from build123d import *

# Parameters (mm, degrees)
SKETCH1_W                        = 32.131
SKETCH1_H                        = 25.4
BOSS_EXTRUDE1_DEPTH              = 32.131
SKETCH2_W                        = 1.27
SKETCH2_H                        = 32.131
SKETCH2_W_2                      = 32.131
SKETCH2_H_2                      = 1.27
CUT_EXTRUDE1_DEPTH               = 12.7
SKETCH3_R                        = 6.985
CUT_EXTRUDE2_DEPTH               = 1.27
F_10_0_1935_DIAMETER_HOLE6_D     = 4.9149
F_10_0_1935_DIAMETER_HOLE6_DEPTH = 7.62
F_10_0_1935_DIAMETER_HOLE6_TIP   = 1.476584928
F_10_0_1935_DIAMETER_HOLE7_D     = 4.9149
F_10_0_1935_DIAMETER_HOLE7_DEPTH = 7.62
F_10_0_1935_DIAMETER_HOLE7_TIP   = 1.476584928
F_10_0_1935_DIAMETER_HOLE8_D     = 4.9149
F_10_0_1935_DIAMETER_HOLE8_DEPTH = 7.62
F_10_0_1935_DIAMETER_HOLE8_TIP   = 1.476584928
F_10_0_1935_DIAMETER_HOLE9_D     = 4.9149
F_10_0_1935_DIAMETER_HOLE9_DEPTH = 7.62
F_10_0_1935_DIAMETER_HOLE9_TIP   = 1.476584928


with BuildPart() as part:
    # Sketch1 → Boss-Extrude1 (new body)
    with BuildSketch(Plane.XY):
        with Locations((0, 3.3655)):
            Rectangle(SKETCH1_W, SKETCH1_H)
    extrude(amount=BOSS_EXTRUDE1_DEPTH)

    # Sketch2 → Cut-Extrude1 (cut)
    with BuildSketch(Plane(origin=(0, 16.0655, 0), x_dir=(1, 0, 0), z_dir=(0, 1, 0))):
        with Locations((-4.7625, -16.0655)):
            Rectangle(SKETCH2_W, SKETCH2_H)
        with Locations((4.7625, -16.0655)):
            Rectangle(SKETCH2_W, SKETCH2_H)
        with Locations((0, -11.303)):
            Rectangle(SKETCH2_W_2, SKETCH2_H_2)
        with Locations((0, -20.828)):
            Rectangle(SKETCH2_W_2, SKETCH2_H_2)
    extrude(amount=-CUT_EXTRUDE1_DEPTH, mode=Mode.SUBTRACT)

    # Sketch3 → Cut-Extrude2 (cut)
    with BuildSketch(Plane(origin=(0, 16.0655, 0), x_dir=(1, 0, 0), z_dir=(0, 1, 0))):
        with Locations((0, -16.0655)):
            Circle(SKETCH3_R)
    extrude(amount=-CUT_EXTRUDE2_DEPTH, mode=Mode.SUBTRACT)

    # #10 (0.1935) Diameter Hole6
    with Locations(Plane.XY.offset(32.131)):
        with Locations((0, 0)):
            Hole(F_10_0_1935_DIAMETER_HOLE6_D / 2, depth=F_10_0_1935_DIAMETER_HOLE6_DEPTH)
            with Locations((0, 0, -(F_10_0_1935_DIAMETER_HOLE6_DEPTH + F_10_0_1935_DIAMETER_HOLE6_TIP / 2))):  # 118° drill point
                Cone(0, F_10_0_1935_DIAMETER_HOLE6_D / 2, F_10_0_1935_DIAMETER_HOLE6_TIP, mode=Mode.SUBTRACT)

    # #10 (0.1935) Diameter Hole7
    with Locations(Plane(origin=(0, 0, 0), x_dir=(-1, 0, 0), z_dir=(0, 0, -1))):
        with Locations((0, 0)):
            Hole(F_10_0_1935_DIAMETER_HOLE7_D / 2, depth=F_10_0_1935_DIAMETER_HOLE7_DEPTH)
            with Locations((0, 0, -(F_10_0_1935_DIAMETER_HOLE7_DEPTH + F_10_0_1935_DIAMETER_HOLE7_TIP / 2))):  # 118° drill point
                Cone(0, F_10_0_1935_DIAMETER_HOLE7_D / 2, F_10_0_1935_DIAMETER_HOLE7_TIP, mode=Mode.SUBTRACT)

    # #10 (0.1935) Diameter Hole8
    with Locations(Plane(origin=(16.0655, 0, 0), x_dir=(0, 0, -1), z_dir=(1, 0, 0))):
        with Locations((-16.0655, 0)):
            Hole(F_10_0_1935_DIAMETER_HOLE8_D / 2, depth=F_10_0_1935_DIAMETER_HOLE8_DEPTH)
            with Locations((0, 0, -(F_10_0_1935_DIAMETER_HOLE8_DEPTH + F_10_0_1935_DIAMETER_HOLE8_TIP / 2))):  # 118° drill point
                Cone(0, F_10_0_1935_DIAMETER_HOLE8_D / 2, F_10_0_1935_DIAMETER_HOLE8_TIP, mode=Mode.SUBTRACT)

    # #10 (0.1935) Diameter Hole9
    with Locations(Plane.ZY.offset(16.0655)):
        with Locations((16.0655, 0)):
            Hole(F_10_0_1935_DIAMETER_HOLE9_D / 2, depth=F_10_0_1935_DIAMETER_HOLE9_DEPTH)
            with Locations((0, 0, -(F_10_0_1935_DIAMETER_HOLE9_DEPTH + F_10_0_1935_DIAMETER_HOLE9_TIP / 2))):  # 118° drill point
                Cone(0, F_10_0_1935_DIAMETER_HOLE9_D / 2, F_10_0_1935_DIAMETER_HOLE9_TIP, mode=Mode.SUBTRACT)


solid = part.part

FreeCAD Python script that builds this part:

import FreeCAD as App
import Part
import Sketcher

V = App.Vector
Q = App.Units.Quantity

doc = App.newDocument("Part")
params = doc.addObject("Spreadsheet::Sheet", "Params")
for row, (alias, value) in enumerate([
    ("sketch1_height", "1 in"),
    ("sketch1_width", "1.265 in"),
    ("pad1_length", "1.265 in"),
    ("sketch2_width", "0.05 in"),
    ("sketch2_width2", "0.42 in"),
    ("sketch2_width3", "0.325 in"),
    ("pocket1_length", "0.5 in"),
    ("sketch3_diameter", "0.55 in"),
    ("pocket2_length", "0.05 in"),
    ("hole_diameter", "0.1935 in"),
    ("hole_depth", "0.3 in"),
    ("hole2_diameter", "0.1935 in"),
    ("hole2_depth", "0.3 in"),
    ("hole3_diameter", "0.1935 in"),
    ("hole3_depth", "0.3 in"),
    ("hole4_diameter", "0.1935 in"),
    ("hole4_depth", "0.3 in"),
], start=1):
    params.set(f"A{row}", alias)
    params.set(f"B{row}", "=" + value)
    params.setAlias(f"B{row}", alias)

body = doc.addObject("PartDesign::Body", "Body")

# Sketch on XY plane
sketch1 = doc.addObject("Sketcher::SketchObject", "Sketch")
body.addObject(sketch1)
sketch1.AttachmentSupport = (doc.XY_Plane, [""])
sketch1.MapMode = "FlatFace"
sketch1.addGeometry([
    Part.LineSegment(V(-16, 16, 0), V(-16, -9, 0)),
    Part.LineSegment(V(-16, -9, 0), V(16, -9, 0)),
    Part.LineSegment(V(16, -9, 0), V(16, 16, 0)),
    Part.LineSegment(V(16, 16, 0), V(-16, 16, 0)),
], False)
sketch1.addConstraint([
    Sketcher.Constraint("Coincident", 0, 2, 1, 1),
    Sketcher.Constraint("Coincident", 1, 2, 2, 1),
    Sketcher.Constraint("Coincident", 2, 2, 3, 1),
    Sketcher.Constraint("Coincident", 3, 2, 0, 1),
    Sketcher.Constraint("Vertical", 0),
    Sketcher.Constraint("Horizontal", 1),
    Sketcher.Constraint("Vertical", 2),
    Sketcher.Constraint("Horizontal", 3),
    Sketcher.Constraint("DistanceY", 0, 2, 0, 1, Q("1 in")),
    Sketcher.Constraint("DistanceX", 1, 1, 1, 2, Q("1.265 in")),
    Sketcher.Constraint("DistanceX", 0, 2, -1, 1, Q("0.6325 in")),
    Sketcher.Constraint("DistanceY", 0, 2, -1, 1, Q("0.3675 in")),
])
sketch1.setExpression("Constraints[8]", "Params.sketch1_height")
sketch1.setExpression("Constraints[9]", "Params.sketch1_width")
pad1 = doc.addObject("PartDesign::Pad", "Pad")
body.addObject(pad1)
pad1.Profile = sketch1
pad1.setExpression("Length", "Params.pad1_length")

# Sketch on XZ plane
sketch2 = doc.addObject("Sketcher::SketchObject", "Sketch001")
body.addObject(sketch2)
sketch2.AttachmentSupport = (doc.XZ_Plane, [""])
sketch2.MapMode = "FlatFace"
sketch2.AttachmentOffset = App.Placement(V(0, 0, -0.6325 * 25.4), App.Rotation())
sketch2.addGeometry([
    Part.LineSegment(V(-5.4, 21.5, 0), V(-5.4, 32.1, 0)),  # 0
    Part.LineSegment(V(-5.4, 32.1, 0), V(-4.1, 32.1, 0)),  # 1
    Part.LineSegment(V(-4.1, 32.1, 0), V(-4.1, 21.5, 0)),  # 2
    Part.LineSegment(V(-4.1, 21.5, 0), V(4.1, 21.5, 0)),  # 3
    Part.LineSegment(V(4.1, 21.5, 0), V(4.1, 32.1, 0)),  # 4
    Part.LineSegment(V(4.1, 32.1, 0), V(5.4, 32.1, 0)),  # 5
    Part.LineSegment(V(5.4, 32.1, 0), V(5.4, 21.5, 0)),  # 6
    Part.LineSegment(V(5.4, 21.5, 0), V(16.1, 21.5, 0)),  # 7
    Part.LineSegment(V(16.1, 21.5, 0), V(16.1, 20.2, 0)),  # 8
    Part.LineSegment(V(16.1, 20.2, 0), V(5.4, 20.2, 0)),  # 9
    Part.LineSegment(V(5.4, 20.2, 0), V(5.4, 11.9, 0)),  # 10
    Part.LineSegment(V(5.4, 11.9, 0), V(16.1, 11.9, 0)),  # 11
    Part.LineSegment(V(16.1, 11.9, 0), V(16.1, 10.7, 0)),  # 12
    Part.LineSegment(V(16.1, 10.7, 0), V(5.4, 10.7, 0)),  # 13
    Part.LineSegment(V(5.4, 10.7, 0), V(5.4, 0, 0)),  # 14
    Part.LineSegment(V(5.4, 0, 0), V(4.1, 0, 0)),  # 15
    Part.LineSegment(V(4.1, 0, 0), V(4.1, 10.7, 0)),  # 16
    Part.LineSegment(V(4.1, 10.7, 0), V(-4.1, 10.7, 0)),  # 17
    Part.LineSegment(V(-4.1, 10.7, 0), V(-4.1, 0, 0)),  # 18
    Part.LineSegment(V(-4.1, 0, 0), V(-5.4, 0, 0)),  # 19
    Part.LineSegment(V(-5.4, 0, 0), V(-5.4, 10.7, 0)),  # 20
    Part.LineSegment(V(-5.4, 10.7, 0), V(-16.1, 10.7, 0)),  # 21
    Part.LineSegment(V(-16.1, 10.7, 0), V(-16.1, 11.9, 0)),  # 22
    Part.LineSegment(V(-16.1, 11.9, 0), V(-5.4, 11.9, 0)),  # 23
    Part.LineSegment(V(-5.4, 11.9, 0), V(-5.4, 20.2, 0)),  # 24
    Part.LineSegment(V(-5.4, 20.2, 0), V(-16.1, 20.2, 0)),  # 25
    Part.LineSegment(V(-16.1, 20.2, 0), V(-16.1, 21.5, 0)),  # 26
    Part.LineSegment(V(-16.1, 21.5, 0), V(-5.4, 21.5, 0)),  # 27
    Part.LineSegment(V(4.1, 11.9, 0), V(4.1, 20.2, 0)),  # 28
    Part.LineSegment(V(4.1, 20.2, 0), V(-4.1, 20.2, 0)),  # 29
    Part.LineSegment(V(-4.1, 20.2, 0), V(-4.1, 11.9, 0)),  # 30
    Part.LineSegment(V(-4.1, 11.9, 0), V(4.1, 11.9, 0)),  # 31
], False)
sketch2.addConstraint([
    Sketcher.Constraint("Coincident", 0, 2, 1, 1),
    Sketcher.Constraint("Coincident", 1, 2, 2, 1),
    Sketcher.Constraint("Coincident", 2, 2, 3, 1),
    Sketcher.Constraint("Coincident", 3, 2, 4, 1),
    Sketcher.Constraint("Coincident", 4, 2, 5, 1),
    Sketcher.Constraint("Coincident", 5, 2, 6, 1),
    Sketcher.Constraint("Coincident", 6, 2, 7, 1),
    Sketcher.Constraint("Coincident", 7, 2, 8, 1),
    Sketcher.Constraint("Coincident", 8, 2, 9, 1),
    Sketcher.Constraint("Coincident", 9, 2, 10, 1),
    Sketcher.Constraint("Coincident", 10, 2, 11, 1),
    Sketcher.Constraint("Coincident", 11, 2, 12, 1),
    Sketcher.Constraint("Coincident", 12, 2, 13, 1),
    Sketcher.Constraint("Coincident", 13, 2, 14, 1),
    Sketcher.Constraint("Coincident", 14, 2, 15, 1),
    Sketcher.Constraint("Coincident", 15, 2, 16, 1),
    Sketcher.Constraint("Coincident", 16, 2, 17, 1),
    Sketcher.Constraint("Coincident", 17, 2, 18, 1),
    Sketcher.Constraint("Coincident", 18, 2, 19, 1),
    Sketcher.Constraint("Coincident", 19, 2, 20, 1),
    Sketcher.Constraint("Coincident", 20, 2, 21, 1),
    Sketcher.Constraint("Coincident", 21, 2, 22, 1),
    Sketcher.Constraint("Coincident", 22, 2, 23, 1),
    Sketcher.Constraint("Coincident", 23, 2, 24, 1),
    Sketcher.Constraint("Coincident", 24, 2, 25, 1),
    Sketcher.Constraint("Coincident", 25, 2, 26, 1),
    Sketcher.Constraint("Coincident", 26, 2, 27, 1),
    Sketcher.Constraint("Coincident", 27, 2, 0, 1),
    Sketcher.Constraint("Coincident", 28, 2, 29, 1),
    Sketcher.Constraint("Coincident", 29, 2, 30, 1),
    Sketcher.Constraint("Coincident", 30, 2, 31, 1),
    Sketcher.Constraint("Coincident", 31, 2, 28, 1),
    Sketcher.Constraint("Vertical", 0),
    Sketcher.Constraint("Horizontal", 1),
    Sketcher.Constraint("Vertical", 2),
    Sketcher.Constraint("Horizontal", 3),
    Sketcher.Constraint("Vertical", 4),
    Sketcher.Constraint("Horizontal", 5),
    Sketcher.Constraint("Vertical", 6),
    Sketcher.Constraint("Horizontal", 7),
    Sketcher.Constraint("Vertical", 8),
    Sketcher.Constraint("Horizontal", 9),
    Sketcher.Constraint("Vertical", 10),
    Sketcher.Constraint("Horizontal", 11),
    Sketcher.Constraint("Vertical", 12),
    Sketcher.Constraint("Horizontal", 13),
    Sketcher.Constraint("Vertical", 14),
    Sketcher.Constraint("Horizontal", 15),
    Sketcher.Constraint("Vertical", 16),
    Sketcher.Constraint("Horizontal", 17),
    Sketcher.Constraint("Vertical", 18),
    Sketcher.Constraint("Horizontal", 19),
    Sketcher.Constraint("Vertical", 20),
    Sketcher.Constraint("Horizontal", 21),
    Sketcher.Constraint("Vertical", 22),
    Sketcher.Constraint("Horizontal", 23),
    Sketcher.Constraint("Vertical", 24),
    Sketcher.Constraint("Horizontal", 25),
    Sketcher.Constraint("Vertical", 26),
    Sketcher.Constraint("Horizontal", 27),
    Sketcher.Constraint("Vertical", 28),
    Sketcher.Constraint("Horizontal", 29),
    Sketcher.Constraint("Vertical", 30),
    Sketcher.Constraint("Horizontal", 31),
    Sketcher.Constraint("Symmetric", 15, 2, 18, 2, -1, 1),
    Sketcher.Constraint("Symmetric", 1, 2, 4, 2, -2),
    Sketcher.Constraint("Symmetric", 14, 2, 19, 2, -2),
    Sketcher.Constraint("Symmetric", 12, 2, 21, 2, -2),
    Sketcher.Constraint("Symmetric", 10, 2, 23, 2, -2),
    Sketcher.Constraint("Symmetric", 8, 2, 25, 2, -2),
    Sketcher.Constraint("Symmetric", 6, 2, 27, 2, -2),
    Sketcher.Constraint("Horizontal", 3, 2, 6, 2),
    Sketcher.Constraint("Horizontal", 13, 2, 16, 2),
    Sketcher.Constraint("Horizontal", 25, 2, 28, 2),
    Sketcher.Constraint("Horizontal", 23, 2, 30, 2),
    Sketcher.Constraint("Vertical", 6, 2, 9, 2),
    Sketcher.Constraint("Vertical", 8, 2, 11, 2),
    Sketcher.Constraint("Vertical", 10, 2, 13, 2),
    Sketcher.Constraint("Vertical", 4, 2, 15, 2),
    Sketcher.Constraint("Vertical", 16, 2, 28, 2),
    Sketcher.Constraint("Vertical", 18, 2, 29, 2),
    Sketcher.Constraint("Equal", 27, 0),
    Sketcher.Constraint("Equal", 19, 8),
    Sketcher.Constraint("Equal", 31, 10),
    Sketcher.Constraint("Equal", 8, 12),
    Sketcher.Constraint("Equal", 6, 14),
    Sketcher.Constraint("DistanceX", 1, 1, 1, 2, Q("0.05 in")),
    Sketcher.Constraint("DistanceX", 7, 1, 7, 2, Q("0.42 in")),
    Sketcher.Constraint("DistanceX", 3, 1, 3, 2, Q("0.325 in")),
])
sketch2.setExpression("Constraints[86]", "Params.sketch2_width")
sketch2.setExpression("Constraints[87]", "Params.sketch2_width2")
sketch2.setExpression("Constraints[88]", "Params.sketch2_width3")
pocket1 = doc.addObject("PartDesign::Pocket", "Pocket")
body.addObject(pocket1)
pocket1.Profile = sketch2
pocket1.setExpression("Length", "Params.pocket1_length")
pocket1.Reversed = True

# Sketch on XZ plane
sketch3 = doc.addObject("Sketcher::SketchObject", "Sketch002")
body.addObject(sketch3)
sketch3.AttachmentSupport = (doc.XZ_Plane, [""])
sketch3.MapMode = "FlatFace"
sketch3.AttachmentOffset = App.Placement(V(0, 0, -0.6325 * 25.4), App.Rotation())
sketch3.addGeometry(Part.Circle(V(0, 16, 0), V(0, 0, 1), 7), False)
sketch3.addConstraint([
    Sketcher.Constraint("PointOnObject", 0, 3, -2),
    Sketcher.Constraint("Diameter", 0, Q("0.55 in")),
    Sketcher.Constraint("DistanceY", -1, 1, 0, 3, Q("0.6325 in")),
])
sketch3.setExpression("Constraints[1]", "Params.sketch3_diameter")
pocket2 = doc.addObject("PartDesign::Pocket", "Pocket001")
body.addObject(pocket2)
pocket2.Profile = sketch3
pocket2.setExpression("Length", "Params.pocket2_length")
pocket2.Reversed = True

# Sketch on XY plane
sketch4 = doc.addObject("Sketcher::SketchObject", "Sketch003")
body.addObject(sketch4)
sketch4.AttachmentSupport = (doc.XY_Plane, [""])
sketch4.MapMode = "FlatFace"
sketch4.AttachmentOffset = App.Placement(V(0, 0, 1.265 * 25.4), App.Rotation())
sketch4.addGeometry(Part.Circle(V(0, 0, 0), V(0, 0, 1), 2.5), False)
sketch4.addConstraint([
    Sketcher.Constraint("Coincident", 0, 3, -1, 1),
    Sketcher.Constraint("Diameter", 0, Q("0.1935 in")),
])
doc.recompute()
hole = doc.addObject("PartDesign::Hole", "Hole")
body.addObject(hole)
hole.Profile = sketch4
hole.ThreadType = "None"
hole.setExpression("Diameter", "Params.hole_diameter")
hole.DepthType = "Dimension"
hole.setExpression("Depth", "Params.hole_depth")
hole.DrillPoint = "Angled"
hole.DrillPointAngle = 118

# Sketch on XY plane
sketch5 = doc.addObject("Sketcher::SketchObject", "Sketch004")
body.addObject(sketch5)
sketch5.AttachmentSupport = (doc.XY_Plane, [""])
sketch5.MapMode = "FlatFace"
sketch5.addGeometry(Part.Circle(V(0, 0, 0), V(0, 0, 1), 2.5), False)
sketch5.addConstraint([
    Sketcher.Constraint("Coincident", 0, 3, -1, 1),
    Sketcher.Constraint("Diameter", 0, Q("0.1935 in")),
])
doc.recompute()
hole2 = doc.addObject("PartDesign::Hole", "Hole001")
body.addObject(hole2)
hole2.Profile = sketch5
hole2.ThreadType = "None"
hole2.setExpression("Diameter", "Params.hole2_diameter")
hole2.DepthType = "Dimension"
hole2.setExpression("Depth", "Params.hole2_depth")
hole2.DrillPoint = "Angled"
hole2.DrillPointAngle = 118
hole2.Reversed = True

# Sketch on YZ plane
sketch6 = doc.addObject("Sketcher::SketchObject", "Sketch005")
body.addObject(sketch6)
sketch6.AttachmentSupport = (doc.YZ_Plane, [""])
sketch6.MapMode = "FlatFace"
sketch6.AttachmentOffset = App.Placement(V(0, 0, 0.6325 * 25.4), App.Rotation())
sketch6.addGeometry(Part.Circle(V(0, 16.1, 0), V(0, 0, 1), 2.5), False)
sketch6.addConstraint([
    Sketcher.Constraint("PointOnObject", 0, 3, -2),
    Sketcher.Constraint("Diameter", 0, Q("0.1935 in")),
    Sketcher.Constraint("DistanceY", -1, 1, 0, 3, Q("0.6325 in")),
])
doc.recompute()
hole3 = doc.addObject("PartDesign::Hole", "Hole002")
body.addObject(hole3)
hole3.Profile = sketch6
hole3.ThreadType = "None"
hole3.setExpression("Diameter", "Params.hole3_diameter")
hole3.DepthType = "Dimension"
hole3.setExpression("Depth", "Params.hole3_depth")
hole3.DrillPoint = "Angled"
hole3.DrillPointAngle = 118

# Sketch on YZ plane
sketch7 = doc.addObject("Sketcher::SketchObject", "Sketch006")
body.addObject(sketch7)
sketch7.AttachmentSupport = (doc.YZ_Plane, [""])
sketch7.MapMode = "FlatFace"
sketch7.AttachmentOffset = App.Placement(V(0, 0, -0.6325 * 25.4), App.Rotation())
sketch7.addGeometry(Part.Circle(V(0, 16.1, 0), V(0, 0, 1), 2.5), False)
sketch7.addConstraint([
    Sketcher.Constraint("PointOnObject", 0, 3, -2),
    Sketcher.Constraint("Diameter", 0, Q("0.1935 in")),
    Sketcher.Constraint("DistanceY", -1, 1, 0, 3, Q("0.6325 in")),
])
doc.recompute()
hole4 = doc.addObject("PartDesign::Hole", "Hole003")
body.addObject(hole4)
hole4.Profile = sketch7
hole4.ThreadType = "None"
hole4.setExpression("Diameter", "Params.hole4_diameter")
hole4.DepthType = "Dimension"
hole4.setExpression("Depth", "Params.hole4_depth")
hole4.DrillPoint = "Angled"
hole4.DrillPointAngle = 118
hole4.Reversed = True

doc.recompute()
